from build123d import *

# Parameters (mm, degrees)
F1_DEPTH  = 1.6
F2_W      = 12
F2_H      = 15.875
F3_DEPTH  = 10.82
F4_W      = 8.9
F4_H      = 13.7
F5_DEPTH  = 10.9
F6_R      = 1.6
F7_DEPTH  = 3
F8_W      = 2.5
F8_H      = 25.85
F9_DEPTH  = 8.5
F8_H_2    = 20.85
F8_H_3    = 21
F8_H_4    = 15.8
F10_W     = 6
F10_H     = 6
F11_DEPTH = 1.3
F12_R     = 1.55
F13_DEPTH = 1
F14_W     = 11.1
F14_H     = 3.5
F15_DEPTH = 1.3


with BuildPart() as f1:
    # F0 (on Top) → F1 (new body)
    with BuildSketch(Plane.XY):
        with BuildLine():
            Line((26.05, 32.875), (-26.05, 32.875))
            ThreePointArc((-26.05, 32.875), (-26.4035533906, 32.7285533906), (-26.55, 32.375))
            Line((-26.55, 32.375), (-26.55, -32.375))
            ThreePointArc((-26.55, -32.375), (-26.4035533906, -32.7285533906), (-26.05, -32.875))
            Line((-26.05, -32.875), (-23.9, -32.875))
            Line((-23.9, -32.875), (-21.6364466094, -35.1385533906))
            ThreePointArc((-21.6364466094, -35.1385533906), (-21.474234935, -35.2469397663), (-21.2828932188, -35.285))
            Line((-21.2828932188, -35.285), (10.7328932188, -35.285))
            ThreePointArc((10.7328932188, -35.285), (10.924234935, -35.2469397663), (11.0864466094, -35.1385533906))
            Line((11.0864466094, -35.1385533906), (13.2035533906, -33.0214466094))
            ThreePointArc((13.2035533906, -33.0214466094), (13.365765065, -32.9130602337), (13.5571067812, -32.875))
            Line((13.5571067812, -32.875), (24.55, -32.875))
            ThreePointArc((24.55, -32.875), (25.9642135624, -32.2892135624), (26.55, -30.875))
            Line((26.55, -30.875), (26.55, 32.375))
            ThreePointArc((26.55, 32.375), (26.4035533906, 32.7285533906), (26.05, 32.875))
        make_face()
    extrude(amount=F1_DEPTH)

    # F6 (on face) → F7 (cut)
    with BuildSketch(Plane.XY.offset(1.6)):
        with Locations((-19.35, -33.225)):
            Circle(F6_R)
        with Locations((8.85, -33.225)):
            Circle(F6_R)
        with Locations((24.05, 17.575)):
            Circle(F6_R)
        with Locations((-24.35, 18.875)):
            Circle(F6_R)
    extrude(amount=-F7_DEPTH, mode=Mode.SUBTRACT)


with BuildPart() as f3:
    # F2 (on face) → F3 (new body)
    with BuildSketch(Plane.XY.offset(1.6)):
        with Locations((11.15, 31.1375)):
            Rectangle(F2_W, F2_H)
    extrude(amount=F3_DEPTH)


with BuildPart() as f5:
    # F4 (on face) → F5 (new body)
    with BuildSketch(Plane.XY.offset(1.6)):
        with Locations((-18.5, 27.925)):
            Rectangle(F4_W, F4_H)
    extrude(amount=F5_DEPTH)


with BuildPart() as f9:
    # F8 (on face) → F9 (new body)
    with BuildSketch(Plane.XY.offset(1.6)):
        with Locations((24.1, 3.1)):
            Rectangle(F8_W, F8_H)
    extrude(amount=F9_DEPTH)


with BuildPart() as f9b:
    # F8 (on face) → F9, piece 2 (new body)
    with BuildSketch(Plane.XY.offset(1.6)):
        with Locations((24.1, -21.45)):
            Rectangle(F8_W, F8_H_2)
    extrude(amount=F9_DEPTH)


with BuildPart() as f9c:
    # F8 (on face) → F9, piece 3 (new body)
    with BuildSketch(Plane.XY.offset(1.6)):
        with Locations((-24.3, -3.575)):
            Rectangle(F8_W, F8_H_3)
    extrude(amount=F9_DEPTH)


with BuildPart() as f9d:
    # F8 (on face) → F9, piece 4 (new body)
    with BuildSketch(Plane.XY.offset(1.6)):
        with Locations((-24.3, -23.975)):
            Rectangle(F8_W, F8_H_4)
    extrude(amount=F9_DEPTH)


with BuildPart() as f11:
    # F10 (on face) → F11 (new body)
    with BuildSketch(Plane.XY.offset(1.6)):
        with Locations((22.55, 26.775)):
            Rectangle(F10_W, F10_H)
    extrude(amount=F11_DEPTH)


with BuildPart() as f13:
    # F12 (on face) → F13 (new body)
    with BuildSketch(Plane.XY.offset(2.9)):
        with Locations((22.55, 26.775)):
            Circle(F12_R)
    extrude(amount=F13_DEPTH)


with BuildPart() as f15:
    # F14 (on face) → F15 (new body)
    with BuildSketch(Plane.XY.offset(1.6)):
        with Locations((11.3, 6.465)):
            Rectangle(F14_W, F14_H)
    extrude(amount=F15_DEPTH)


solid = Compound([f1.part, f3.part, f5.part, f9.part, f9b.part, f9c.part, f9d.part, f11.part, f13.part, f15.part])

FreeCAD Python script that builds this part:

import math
import FreeCAD as App
import Part
import Sketcher

V = App.Vector

doc = App.newDocument("Part")
params = doc.addObject("Spreadsheet::Sheet", "Params")
for row, (alias, value) in enumerate([
    ("sketch1_radius", "2 mm"),
    ("sketch1_radius2", "0.5 mm"),
    ("sketch1_width", "52.1 mm"),
    ("sketch1_width2", "2.15 mm"),
    ("sketch1_height", "64.75 mm"),
    ("pad1_length", "1.6 mm"),
    ("sketch2_diameter", "3.2 mm"),
    ("pocket1_length", "3 mm"),
    ("sketch3_width", "12 mm"),
    ("pad2_length", "10.82 mm"),
    ("sketch4_width", "8.9 mm"),
    ("sketch4_height", "13.7 mm"),
    ("pad3_length", "10.9 mm"),
    ("sketch5_width", "2.5 mm"),
    ("sketch5_height", "25.85 mm"),
    ("pad4_length", "8.5 mm"),
    ("sketch6_width", "2.5 mm"),
    ("sketch6_height", "20.85 mm"),
    ("pad5_length", "8.5 mm"),
    ("sketch7_height", "21 mm"),
    ("sketch7_width", "2.5 mm"),
    ("pad6_length", "8.5 mm"),
    ("sketch8_width", "2.5 mm"),
    ("sketch8_height", "15.8 mm"),
    ("pad7_length", "8.5 mm"),
    ("sketch9_width", "6 mm"),
    ("pad8_length", "1.3 mm"),
    ("sketch10_diameter", "3.1 mm"),
    ("pad9_length", "1 mm"),
    ("sketch11_width", "11.1 mm"),
    ("sketch11_height", "3.5 mm"),
    ("pad10_length", "1.3 mm"),
], start=1):
    params.set(f"A{row}", alias)
    params.set(f"B{row}", "=" + value)
    params.setAlias(f"B{row}", alias)

body = doc.addObject("PartDesign::Body", "Body")

# Sketch on XY plane
sketch1 = body.newObject("Sketcher::SketchObject", "Sketch")
sketch1.AttachmentSupport = (doc.getObject("XY_Plane"), [""])
sketch1.MapMode = "FlatFace"
sketch1.addGeometry([
    Part.LineSegment(V(26.05, 32.875, 0), V(-26.05, 32.875, 0)),  # 0
    Part.ArcOfCircle(Part.Circle(V(-26.05, 32.375, 0), V(0, 0, 1), 0.5), math.radians(90), math.radians(180)),  # 1
    Part.LineSegment(V(-26.55, 32.375, 0), V(-26.55, -32.375, 0)),  # 2
    Part.ArcOfCircle(Part.Circle(V(-26.05, -32.375, 0), V(0, 0, 1), 0.5), math.radians(180), math.radians(270)),  # 3
    Part.LineSegment(V(-26.05, -32.875, 0), V(-23.9, -32.875, 0)),  # 4
    Part.LineSegment(V(-23.9, -32.875, 0), V(-21.636447, -35.138553, 0)),  # 5
    Part.ArcOfCircle(Part.Circle(V(-21.282893, -34.785, 0), V(0, 0, 1), 0.5), math.radians(-135), math.radians(-90)),  # 6
    Part.LineSegment(V(-21.282893, -35.285, 0), V(10.732893, -35.285, 0)),  # 7
    Part.ArcOfCircle(Part.Circle(V(10.732893, -34.785, 0), V(0, 0, 1), 0.5), math.radians(-90), math.radians(-45)),  # 8
    Part.LineSegment(V(11.086447, -35.138553, 0), V(13.203553, -33.021447, 0)),  # 9
    Part.ArcOfCircle(Part.Circle(V(13.557107, -33.375, 0), V(0, 0, 1), 0.5), math.radians(90), math.radians(135)),  # 10
    Part.LineSegment(V(13.557107, -32.875, 0), V(24.55, -32.875, 0)),  # 11
    Part.ArcOfCircle(Part.Circle(V(24.55, -30.875, 0), V(0, 0, 1), 2), math.radians(-90), math.radians(0)),  # 12
    Part.LineSegment(V(26.55, -30.875, 0), V(26.55, 32.375, 0)),  # 13
    Part.ArcOfCircle(Part.Circle(V(26.05, 32.375, 0), V(0, 0, 1), 0.5), math.radians(0), math.radians(90)),  # 14
], False)
sketch1.addConstraint([
    Sketcher.Constraint("Tangent", 0, 2, 1, 1),
    Sketcher.Constraint("Tangent", 1, 2, 2, 1),
    Sketcher.Constraint("Tangent", 2, 2, 3, 1),
    Sketcher.Constraint("Tangent", 3, 2, 4, 1),
    Sketcher.Constraint("Coincident", 4, 2, 5, 1),
    Sketcher.Constraint("Tangent", 5, 2, 6, 1),
    Sketcher.Constraint("Tangent", 6, 2, 7, 1),
    Sketcher.Constraint("Tangent", 7, 2, 8, 1),
    Sketcher.Constraint("Tangent", 8, 2, 9, 1),
    Sketcher.Constraint("Tangent", 9, 2, 10, 2),
    Sketcher.Constraint("Tangent", 10, 1, 11, 1),
    Sketcher.Constraint("Tangent", 11, 2, 12, 1),
    Sketcher.Constraint("Tangent", 12, 2, 13, 1),
    Sketcher.Constraint("Tangent", 13, 2, 14, 1),
    Sketcher.Constraint("Tangent", 14, 2, 0, 1),
    Sketcher.Constraint("Horizontal", 0),
    Sketcher.Constraint("Vertical", 2),
    Sketcher.Constraint("Horizontal", 4),
    Sketcher.Constraint("Horizontal", 7),
    Sketcher.Constraint("Horizontal", 11),
    Sketcher.Constraint("Vertical", 13),
    Sketcher.Constraint("Equal", 1, 3),
    Sketcher.Constraint("Equal", 3, 6),
    Sketcher.Constraint("Equal", 6, 8),
    Sketcher.Constraint("Equal", 8, 10),
    Sketcher.Constraint("Equal", 10, 14),
    Sketcher.Constraint("Symmetric", 3, 3, 14, 3, -1, 1),
    Sketcher.Constraint("Perpendicular", 5, 9),
    Sketcher.Constraint("Horizontal", 5, 2, 8, 2),
    Sketcher.Constraint("Horizontal", 4, 2, 10, 1),
    Sketcher.Constraint("Radius", 12, 2.0),
    Sketcher.Constraint("Radius", 1, 0.5),
    Sketcher.Constraint("DistanceX", 0, 2, 0, 1, 52.1),
    Sketcher.Constraint("DistanceX", 4, 1, 4, 2, 2.15),
    Sketcher.Constraint("DistanceY", 2, 2, 2, 1, 64.75),
    Sketcher.Constraint("DistanceY", 6, 3, 3, 3, 2.41),
    Sketcher.Constraint("DistanceX", 6, 3, 10, 3, 34.84),
])
sketch1.setExpression("Constraints[30]", "Params.sketch1_radius")
sketch1.setExpression("Constraints[31]", "Params.sketch1_radius2")
sketch1.setExpression("Constraints[32]", "Params.sketch1_width")
sketch1.setExpression("Constraints[33]", "Params.sketch1_width2")
sketch1.setExpression("Constraints[34]", "Params.sketch1_height")
pad1 = body.newObject("PartDesign::Pad", "Pad")
pad1.Profile = sketch1
pad1.setExpression("Length", "Params.pad1_length")

# Sketch on XY plane
sketch2 = body.newObject("Sketcher::SketchObject", "Sketch001")
sketch2.AttachmentSupport = (doc.getObject("XY_Plane"), [""])
sketch2.MapMode = "FlatFace"
sketch2.AttachmentOffset = App.Placement(V(0, 0, 1.6), App.Rotation())
sketch2.addGeometry([
    Part.Circle(V(-19.35, -33.225, 0), V(0, 0, 1), 1.6),
    Part.Circle(V(8.85, -33.225, 0), V(0, 0, 1), 1.6),
    Part.Circle(V(24.05, 17.575, 0), V(0, 0, 1), 1.6),
    Part.Circle(V(-24.35, 18.875, 0), V(0, 0, 1), 1.6),
], False)
sketch2.addConstraint([
    Sketcher.Constraint("Equal", 0, 1),
    Sketcher.Constraint("Equal", 1, 2),
    Sketcher.Constraint("Equal", 2, 3),
    Sketcher.Constraint("Horizontal", 0, 3, 1, 3),
    Sketcher.Constraint("Diameter", 0, 3.2),
    Sketcher.Constraint("DistanceX", 3, 3, 0, 3, 5.0),
    Sketcher.Constraint("DistanceX", 0, 3, 1, 3, 28.2),
    Sketcher.Constraint("DistanceX", 1, 3, 2, 3, 15.2),
    Sketcher.Constraint("DistanceY", 1, 3, 2, 3, 50.8),
    Sketcher.Constraint("DistanceY", 2, 3, 3, 3, 1.3),
    Sketcher.Constraint("DistanceX", 0, 3, -1, 1, 19.35),
    Sketcher.Constraint("DistanceY", 0, 3, -1, 1, 33.225),
])
sketch2.setExpression("Constraints[4]", "Params.sketch2_diameter")
pocket1 = body.newObject("PartDesign::Pocket", "Pocket")
pocket1.Profile = sketch2
pocket1.setExpression("Length", "Params.pocket1_length")
body2 = doc.addObject("PartDesign::Body", "Body001")

# Sketch on XY plane
sketch3 = body2.newObject("Sketcher::SketchObject", "Sketch002")
sketch3.AttachmentSupport = (doc.getObject("XY_Plane001"), [""])
sketch3.MapMode = "FlatFace"
sketch3.AttachmentOffset = App.Placement(V(0, 0, 1.6), App.Rotation())
sketch3.addGeometry([
    Part.LineSegment(V(5.15, 39.075, 0), V(5.15, 23.2, 0)),
    Part.LineSegment(V(5.15, 23.2, 0), V(17.15, 23.2, 0)),
    Part.LineSegment(V(17.15, 23.2, 0), V(17.15, 39.075, 0)),
    Part.LineSegment(V(17.15, 39.075, 0), V(5.15, 39.075, 0)),
], False)
sketch3.addConstraint([
    Sketcher.Constraint("Coincident", 0, 2, 1, 1),
    Sketcher.Constraint("Coincident", 1, 2, 2, 1),
    Sketcher.Constraint("Coincident", 2, 2, 3, 1),
    Sketcher.Constraint("Coincident", 3, 2, 0, 1),
    Sketcher.Constraint("Vertical", 0),
    Sketcher.Constraint("Horizontal", 1),
    Sketcher.Constraint("Vertical", 2),
    Sketcher.Constraint("Horizontal", 3),
    Sketcher.Constraint("DistanceX", 1, 1, 1, 2, 12.0),
    Sketcher.Constraint("DistanceY", -1, 1, 0, 2, 23.2),
    Sketcher.Constraint("DistanceY", 0, 2, 0, 1, 15.875),
    Sketcher.Constraint("DistanceX", -1, 1, 0, 2, 5.15),
])
sketch3.setExpression("Constraints[8]", "Params.sketch3_width")
pad2 = body2.newObject("PartDesign::Pad", "Pad001")
pad2.Profile = sketch3
pad2.setExpression("Length", "Params.pad2_length")
body3 = doc.addObject("PartDesign::Body", "Body002")

# Sketch on XY plane
sketch4 = body3.newObject("Sketcher::SketchObject", "Sketch003")
sketch4.AttachmentSupport = (doc.getObject("XY_Plane002"), [""])
sketch4.MapMode = "FlatFace"
sketch4.AttachmentOffset = App.Placement(V(0, 0, 1.6), App.Rotation())
sketch4.addGeometry([
    Part.LineSegment(V(-22.95, 34.775, 0), V(-22.95, 21.075, 0)),
    Part.LineSegment(V(-22.95, 21.075, 0), V(-14.05, 21.075, 0)),
    Part.LineSegment(V(-14.05, 21.075, 0), V(-14.05, 34.775, 0)),
    Part.LineSegment(V(-14.05, 34.775, 0), V(-22.95, 34.775, 0)),
], False)
sketch4.addConstraint([
    Sketcher.Constraint("Coincident", 0, 2, 1, 1),
    Sketcher.Constraint("Coincident", 1, 2, 2, 1),
    Sketcher.Constraint("Coincident", 2, 2, 3, 1),
    Sketcher.Constraint("Coincident", 3, 2, 0, 1),
    Sketcher.Constraint("Vertical", 0),
    Sketcher.Constraint("Horizontal", 1),
    Sketcher.Constraint("Vertical", 2),
    Sketcher.Constraint("Horizontal", 3),
    Sketcher.Constraint("DistanceX", 1, 1, 1, 2, 8.9),
    Sketcher.Constraint("DistanceY", 0, 2, 0, 1, 13.7),
    Sketcher.Constraint("DistanceX", 0, 2, -1, 1, 22.95),
    Sketcher.Constraint("DistanceY", -1, 1, 0, 2, 21.075),
])
sketch4.setExpression("Constraints[8]", "Params.sketch4_width")
sketch4.setExpression("Constraints[9]", "Params.sketch4_height")
pad3 = body3.newObject("PartDesign::Pad", "Pad002")
pad3.Profile = sketch4
pad3.setExpression("Length", "Params.pad3_length")
body4 = doc.addObject("PartDesign::Body", "Body003")

# Sketch on XY plane
sketch5 = body4.newObject("Sketcher::SketchObject", "Sketch004")
sketch5.AttachmentSupport = (doc.getObject("XY_Plane003"), [""])
sketch5.MapMode = "FlatFace"
sketch5.AttachmentOffset = App.Placement(V(0, 0, 1.6), App.Rotation())
sketch5.addGeometry([
    Part.LineSegment(V(22.85, 16.025, 0), V(22.85, -9.825, 0)),
    Part.LineSegment(V(22.85, -9.825, 0), V(25.35, -9.825, 0)),
    Part.LineSegment(V(25.35, -9.825, 0), V(25.35, 16.025, 0)),
    Part.LineSegment(V(25.35, 16.025, 0), V(22.85, 16.025, 0)),
], False)
sketch5.addConstraint([
    Sketcher.Constraint("Coincident", 0, 2, 1, 1),
    Sketcher.Constraint("Coincident", 1, 2, 2, 1),
    Sketcher.Constraint("Coincident", 2, 2, 3, 1),
    Sketcher.Constraint("Coincident", 3, 2, 0, 1),
    Sketcher.Constraint("Vertical", 0),
    Sketcher.Constraint("Horizontal", 1),
    Sketcher.Constraint("Vertical", 2),
    Sketcher.Constraint("Horizontal", 3),
    Sketcher.Constraint("DistanceX", 1, 1, 1, 2, 2.5),
    Sketcher.Constraint("DistanceY", 0, 2, 0, 1, 25.85),
    Sketcher.Constraint("DistanceX", -1, 1, 0, 2, 22.85),
    Sketcher.Constraint("DistanceY", 0, 2, -1, 1, 9.825),
])
sketch5.setExpression("Constraints[8]", "Params.sketch5_width")
sketch5.setExpression("Constraints[9]", "Params.sketch5_height")
pad4 = body4.newObject("PartDesign::Pad", "Pad003")
pad4.Profile = sketch5
pad4.setExpression("Length", "Params.pad4_length")
body5 = doc.addObject("PartDesign::Body", "Body004")

# Sketch on XY plane
sketch6 = body5.newObject("Sketcher::SketchObject", "Sketch005")
sketch6.AttachmentSupport = (doc.getObject("XY_Plane004"), [""])
sketch6.MapMode = "FlatFace"
sketch6.AttachmentOffset = App.Placement(V(0, 0, 1.6), App.Rotation())
sketch6.addGeometry([
    Part.LineSegment(V(22.85, -11.025, 0), V(22.85, -31.875, 0)),
    Part.LineSegment(V(22.85, -31.875, 0), V(25.35, -31.875, 0)),
    Part.LineSegment(V(25.35, -31.875, 0), V(25.35, -11.025, 0)),
    Part.LineSegment(V(25.35, -11.025, 0), V(22.85, -11.025, 0)),
], False)
sketch6.addConstraint([
    Sketcher.Constraint("Coincident", 0, 2, 1, 1),
    Sketcher.Constraint("Coincident", 1, 2, 2, 1),
    Sketcher.Constraint("Coincident", 2, 2, 3, 1),
    Sketcher.Constraint("Coincident", 3, 2, 0, 1),
    Sketcher.Constraint("Vertical", 0),
    Sketcher.Constraint("Horizontal", 1),
    Sketcher.Constraint("Vertical", 2),
    Sketcher.Constraint("Horizontal", 3),
    Sketcher.Constraint("DistanceX", 1, 1, 1, 2, 2.5),
    Sketcher.Constraint("DistanceY", 0, 2, 0, 1, 20.85),
    Sketcher.Constraint("DistanceX", -1, 1, 0, 2, 22.85),
    Sketcher.Constraint("DistanceY", 0, 2, -1, 1, 31.875),
])
sketch6.setExpression("Constraints[8]", "Params.sketch6_width")
sketch6.setExpression("Constraints[9]", "Params.sketch6_height")
pad5 = body5.newObject("PartDesign::Pad", "Pad004")
pad5.Profile = sketch6
pad5.setExpression("Length", "Params.pad5_length")
body6 = doc.addObject("PartDesign::Body", "Body005")

# Sketch on XY plane
sketch7 = body6.newObject("Sketcher::SketchObject", "Sketch006")
sketch7.AttachmentSupport = (doc.getObject("XY_Plane005"), [""])
sketch7.MapMode = "FlatFace"
sketch7.AttachmentOffset = App.Placement(V(0, 0, 1.6), App.Rotation())
sketch7.addGeometry([
    Part.LineSegment(V(-25.55, 6.925, 0), V(-25.55, -14.075, 0)),
    Part.LineSegment(V(-25.55, -14.075, 0), V(-23.05, -14.075, 0)),
    Part.LineSegment(V(-23.05, -14.075, 0), V(-23.05, 6.925, 0)),
    Part.LineSegment(V(-23.05, 6.925, 0), V(-25.55, 6.925, 0)),
], False)
sketch7.addConstraint([
    Sketcher.Constraint("Coincident", 0, 2, 1, 1),
    Sketcher.Constraint("Coincident", 1, 2, 2, 1),
    Sketcher.Constraint("Coincident", 2, 2, 3, 1),
    Sketcher.Constraint("Coincident", 3, 2, 0, 1),
    Sketcher.Constraint("Vertical", 0),
    Sketcher.Constraint("Horizontal", 1),
    Sketcher.Constraint("Vertical", 2),
    Sketcher.Constraint("Horizontal", 3),
    Sketcher.Constraint("DistanceY", 0, 2, 0, 1, 21.0),
    Sketcher.Constraint("DistanceX", 1, 1, 1, 2, 2.5),
    Sketcher.Constraint("DistanceX", 0, 2, -1, 1, 25.55),
    Sketcher.Constraint("DistanceY", 0, 2, -1, 1, 14.075),
])
sketch7.setExpression("Constraints[8]", "Params.sketch7_height")
sketch7.setExpression("Constraints[9]", "Params.sketch7_width")
pad6 = body6.newObject("PartDesign::Pad", "Pad005")
pad6.Profile = sketch7
pad6.setExpression("Length", "Params.pad6_length")
body7 = doc.addObject("PartDesign::Body", "Body006")

# Sketch on XY plane
sketch8 = body7.newObject("Sketcher::SketchObject", "Sketch007")
sketch8.AttachmentSupport = (doc.getObject("XY_Plane006"), [""])
sketch8.MapMode = "FlatFace"
sketch8.AttachmentOffset = App.Placement(V(0, 0, 1.6), App.Rotation())
sketch8.addGeometry([
    Part.LineSegment(V(-25.55, -16.075, 0), V(-25.55, -31.875, 0)),
    Part.LineSegment(V(-25.55, -31.875, 0), V(-23.05, -31.875, 0)),
    Part.LineSegment(V(-23.05, -31.875, 0), V(-23.05, -16.075, 0)),
    Part.LineSegment(V(-23.05, -16.075, 0), V(-25.55, -16.075, 0)),
], False)
sketch8.addConstraint([
    Sketcher.Constraint("Coincident", 0, 2, 1, 1),
    Sketcher.Constraint("Coincident", 1, 2, 2, 1),
    Sketcher.Constraint("Coincident", 2, 2, 3, 1),
    Sketcher.Constraint("Coincident", 3, 2, 0, 1),
    Sketcher.Constraint("Vertical", 0),
    Sketcher.Constraint("Horizontal", 1),
    Sketcher.Constraint("Vertical", 2),
    Sketcher.Constraint("Horizontal", 3),
    Sketcher.Constraint("DistanceX", 1, 1, 1, 2, 2.5),
    Sketcher.Constraint("DistanceY", 0, 2, 0, 1, 15.8),
    Sketcher.Constraint("DistanceX", 0, 2, -1, 1, 25.55),
    Sketcher.Constraint("DistanceY", 0, 2, -1, 1, 31.875),
])
sketch8.setExpression("Constraints[8]", "Params.sketch8_width")
sketch8.setExpression("Constraints[9]", "Params.sketch8_height")
pad7 = body7.newObject("PartDesign::Pad", "Pad006")
pad7.Profile = sketch8
pad7.setExpression("Length", "Params.pad7_length")
body8 = doc.addObject("PartDesign::Body", "Body007")

# Sketch on XY plane
sketch9 = body8.newObject("Sketcher::SketchObject", "Sketch008")
sketch9.AttachmentSupport = (doc.getObject("XY_Plane007"), [""])
sketch9.MapMode = "FlatFace"
sketch9.AttachmentOffset = App.Placement(V(0, 0, 1.6), App.Rotation())
sketch9.addGeometry([
    Part.LineSegment(V(19.55, 29.775, 0), V(19.55, 23.775, 0)),
    Part.LineSegment(V(19.55, 23.775, 0), V(25.55, 23.775, 0)),
    Part.LineSegment(V(25.55, 23.775, 0), V(25.55, 29.775, 0)),
    Part.LineSegment(V(25.55, 29.775, 0), V(19.55, 29.775, 0)),
], False)
sketch9.addConstraint([
    Sketcher.Constraint("Coincident", 0, 2, 1, 1),
    Sketcher.Constraint("Coincident", 1, 2, 2, 1),
    Sketcher.Constraint("Coincident", 2, 2, 3, 1),
    Sketcher.Constraint("Coincident", 3, 2, 0, 1),
    Sketcher.Constraint("Vertical", 0),
    Sketcher.Constraint("Horizontal", 1),
    Sketcher.Constraint("Vertical", 2),
    Sketcher.Constraint("Horizontal", 3),
    Sketcher.Constraint("Equal", 3, 0),
    Sketcher.Constraint("DistanceX", 1, 1, 1, 2, 6.0),
    Sketcher.Constraint("DistanceX", -1, 1, 0, 2, 19.55),
    Sketcher.Constraint("DistanceY", -1, 1, 0, 2, 23.775),
])
sketch9.setExpression("Constraints[9]", "Params.sketch9_width")
pad8 = body8.newObject("PartDesign::Pad", "Pad007")
pad8.Profile = sketch9
pad8.setExpression("Length", "Params.pad8_length")
body9 = doc.addObject("PartDesign::Body", "Body008")

# Sketch on XY plane
sketch10 = body9.newObject("Sketcher::SketchObject", "Sketch009")
sketch10.AttachmentSupport = (doc.getObject("XY_Plane008"), [""])
sketch10.MapMode = "FlatFace"
sketch10.AttachmentOffset = App.Placement(V(0, 0, 2.9), App.Rotation())
sketch10.addGeometry(Part.Circle(V(22.55, 26.775, 0), V(0, 0, 1), 1.55), False)
sketch10.addConstraint([
    Sketcher.Constraint("Diameter", 0, 3.1),
    Sketcher.Constraint("DistanceX", -1, 1, 0, 3, 22.55),
    Sketcher.Constraint("DistanceY", -1, 1, 0, 3, 26.775),
])
sketch10.setExpression("Constraints[0]", "Params.sketch10_diameter")
pad9 = body9.newObject("PartDesign::Pad", "Pad008")
pad9.Profile = sketch10
pad9.setExpression("Length", "Params.pad9_length")
body10 = doc.addObject("PartDesign::Body", "Body009")

# Sketch on XY plane
sketch11 = body10.newObject("Sketcher::SketchObject", "Sketch010")
sketch11.AttachmentSupport = (doc.getObject("XY_Plane009"), [""])
sketch11.MapMode = "FlatFace"
sketch11.AttachmentOffset = App.Placement(V(0, 0, 1.6), App.Rotation())
sketch11.addGeometry([
    Part.LineSegment(V(5.75, 8.215, 0), V(5.75, 4.715, 0)),
    Part.LineSegment(V(5.75, 4.715, 0), V(16.85, 4.715, 0)),
    Part.LineSegment(V(16.85, 4.715, 0), V(16.85, 8.215, 0)),
    Part.LineSegment(V(16.85, 8.215, 0), V(5.75, 8.215, 0)),
], False)
sketch11.addConstraint([
    Sketcher.Constraint("Coincident", 0, 2, 1, 1),
    Sketcher.Constraint("Coincident", 1, 2, 2, 1),
    Sketcher.Constraint("Coincident", 2, 2, 3, 1),
    Sketcher.Constraint("Coincident", 3, 2, 0, 1),
    Sketcher.Constraint("Vertical", 0),
    Sketcher.Constraint("Horizontal", 1),
    Sketcher.Constraint("Vertical", 2),
    Sketcher.Constraint("Horizontal", 3),
    Sketcher.Constraint("DistanceX", 1, 1, 1, 2, 11.1),
    Sketcher.Constraint("DistanceY", 0, 2, 0, 1, 3.5),
    Sketcher.Constraint("DistanceX", -1, 1, 0, 2, 5.75),
    Sketcher.Constraint("DistanceY", -1, 1, 0, 2, 4.715),
])
sketch11.setExpression("Constraints[8]", "Params.sketch11_width")
sketch11.setExpression("Constraints[9]", "Params.sketch11_height")
pad10 = body10.newObject("PartDesign::Pad", "Pad009")
pad10.Profile = sketch11
pad10.setExpression("Length", "Params.pad10_length")

doc.recompute()
